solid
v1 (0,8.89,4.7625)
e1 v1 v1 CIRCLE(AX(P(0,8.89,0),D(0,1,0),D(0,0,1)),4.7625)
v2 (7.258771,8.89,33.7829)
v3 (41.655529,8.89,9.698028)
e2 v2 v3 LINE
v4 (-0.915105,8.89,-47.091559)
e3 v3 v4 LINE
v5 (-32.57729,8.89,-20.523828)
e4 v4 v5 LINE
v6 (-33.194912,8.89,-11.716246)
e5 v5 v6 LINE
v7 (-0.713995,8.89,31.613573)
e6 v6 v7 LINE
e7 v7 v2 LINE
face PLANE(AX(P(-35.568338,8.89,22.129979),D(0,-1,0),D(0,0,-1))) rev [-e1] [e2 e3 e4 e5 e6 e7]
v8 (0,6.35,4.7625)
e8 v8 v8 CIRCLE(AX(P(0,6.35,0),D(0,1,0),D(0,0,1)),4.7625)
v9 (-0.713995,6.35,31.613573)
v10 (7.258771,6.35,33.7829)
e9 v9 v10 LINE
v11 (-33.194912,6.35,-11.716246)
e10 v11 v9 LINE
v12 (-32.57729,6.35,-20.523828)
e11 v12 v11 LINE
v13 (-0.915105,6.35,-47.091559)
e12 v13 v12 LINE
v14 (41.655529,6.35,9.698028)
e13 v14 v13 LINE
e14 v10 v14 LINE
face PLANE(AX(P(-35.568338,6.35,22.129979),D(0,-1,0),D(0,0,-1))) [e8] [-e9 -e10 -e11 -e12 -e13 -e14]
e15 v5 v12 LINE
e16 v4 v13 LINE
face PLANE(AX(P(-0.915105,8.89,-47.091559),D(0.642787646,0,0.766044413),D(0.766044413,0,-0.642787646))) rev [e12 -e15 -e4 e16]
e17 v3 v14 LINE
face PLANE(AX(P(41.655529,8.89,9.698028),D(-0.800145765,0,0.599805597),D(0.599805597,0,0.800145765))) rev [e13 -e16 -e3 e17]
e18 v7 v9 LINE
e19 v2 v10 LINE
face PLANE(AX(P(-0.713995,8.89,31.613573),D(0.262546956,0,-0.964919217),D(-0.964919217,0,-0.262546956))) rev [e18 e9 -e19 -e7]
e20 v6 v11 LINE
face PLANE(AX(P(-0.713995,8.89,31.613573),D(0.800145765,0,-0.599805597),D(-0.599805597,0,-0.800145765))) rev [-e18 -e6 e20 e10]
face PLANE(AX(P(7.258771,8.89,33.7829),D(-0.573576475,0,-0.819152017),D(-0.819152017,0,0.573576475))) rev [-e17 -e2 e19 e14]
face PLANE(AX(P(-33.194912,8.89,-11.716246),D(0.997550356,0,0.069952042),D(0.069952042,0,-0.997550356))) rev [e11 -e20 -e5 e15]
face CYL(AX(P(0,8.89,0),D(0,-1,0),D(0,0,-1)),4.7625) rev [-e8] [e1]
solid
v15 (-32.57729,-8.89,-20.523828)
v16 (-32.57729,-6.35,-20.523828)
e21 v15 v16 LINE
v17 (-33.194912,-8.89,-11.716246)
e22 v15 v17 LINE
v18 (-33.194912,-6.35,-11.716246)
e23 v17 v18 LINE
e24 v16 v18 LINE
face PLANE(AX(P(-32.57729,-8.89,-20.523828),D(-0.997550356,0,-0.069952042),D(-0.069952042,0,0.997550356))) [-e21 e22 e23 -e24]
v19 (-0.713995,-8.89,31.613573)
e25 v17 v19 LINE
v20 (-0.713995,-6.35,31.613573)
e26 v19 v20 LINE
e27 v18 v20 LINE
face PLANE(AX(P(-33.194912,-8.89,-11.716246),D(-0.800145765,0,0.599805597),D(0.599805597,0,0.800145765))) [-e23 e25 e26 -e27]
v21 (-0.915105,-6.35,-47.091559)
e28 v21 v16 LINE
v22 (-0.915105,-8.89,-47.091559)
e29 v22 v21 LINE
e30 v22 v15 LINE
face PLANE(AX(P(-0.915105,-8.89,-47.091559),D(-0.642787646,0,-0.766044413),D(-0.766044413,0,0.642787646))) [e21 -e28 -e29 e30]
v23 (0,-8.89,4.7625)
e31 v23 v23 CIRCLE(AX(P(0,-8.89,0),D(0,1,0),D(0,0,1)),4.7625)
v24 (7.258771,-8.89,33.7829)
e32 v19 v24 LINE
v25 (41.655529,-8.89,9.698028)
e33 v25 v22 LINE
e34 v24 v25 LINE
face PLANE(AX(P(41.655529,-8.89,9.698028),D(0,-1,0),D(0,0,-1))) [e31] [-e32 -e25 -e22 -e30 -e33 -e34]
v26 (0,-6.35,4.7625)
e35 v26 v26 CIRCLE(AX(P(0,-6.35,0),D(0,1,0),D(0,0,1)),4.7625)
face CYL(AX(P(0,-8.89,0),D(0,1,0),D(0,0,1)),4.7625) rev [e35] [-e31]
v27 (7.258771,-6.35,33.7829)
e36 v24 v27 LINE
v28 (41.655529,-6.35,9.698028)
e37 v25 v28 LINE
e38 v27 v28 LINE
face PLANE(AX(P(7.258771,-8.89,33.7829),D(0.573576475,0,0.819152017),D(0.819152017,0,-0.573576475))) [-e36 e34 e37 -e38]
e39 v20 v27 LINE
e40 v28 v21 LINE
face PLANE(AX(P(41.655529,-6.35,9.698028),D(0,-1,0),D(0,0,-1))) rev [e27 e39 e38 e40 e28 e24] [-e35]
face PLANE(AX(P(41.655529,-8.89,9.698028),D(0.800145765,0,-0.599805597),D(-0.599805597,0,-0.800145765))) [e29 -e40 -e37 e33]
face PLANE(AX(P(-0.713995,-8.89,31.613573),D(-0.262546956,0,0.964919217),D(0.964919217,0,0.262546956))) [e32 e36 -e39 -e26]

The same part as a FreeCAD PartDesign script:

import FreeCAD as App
import Part
import Sketcher

V = App.Vector
Q = App.Units.Quantity

doc = App.newDocument("Part")
body = doc.addObject("PartDesign::Body", "Body")

# Sketch on XZ plane
sketch1 = body.newObject("Sketcher::SketchObject", "Sketch")
sketch1.AttachmentSupport = (doc.getObject("XZ_Plane"), [""])
sketch1.MapMode = "FlatFace"
sketch1.AttachmentOffset = App.Placement(V(0, 0, -0.25 * 25.4), App.Rotation())
sketch1.addGeometry([
    Part.LineSegment(V(41.7, 9.7, 0), V(-0.9, -47.1, 0)),  # 0
    Part.LineSegment(V(-0.9, -47.1, 0), V(-32.6, -20.5, 0)),  # 1
    Part.LineSegment(V(-32.6, -20.5, 0), V(-33.2, -11.7, 0)),  # 2
    Part.LineSegment(V(-33.2, -11.7, 0), V(-0.7, 31.6, 0)),  # 3
    Part.LineSegment(V(-0.7, 31.6, 0), V(7.3, 33.8, 0)),  # 4
    Part.LineSegment(V(7.3, 33.8, 0), V(41.7, 9.7, 0)),  # 5
    Part.Circle(V(0, 0, 0), V(0, 0, 1), 4.8),  # 6
], False)
sketch1.addConstraint([
    Sketcher.Constraint("Coincident", 0, 2, 1, 1),
    Sketcher.Constraint("Coincident", 1, 2, 2, 1),
    Sketcher.Constraint("Coincident", 2, 2, 3, 1),
    Sketcher.Constraint("Coincident", 3, 2, 4, 1),
    Sketcher.Constraint("Coincident", 4, 2, 5, 1),
    Sketcher.Constraint("Coincident", 5, 2, 0, 1),
    Sketcher.Constraint("Coincident", 6, 3, -1, 1),
    Sketcher.Constraint("Parallel", 0, 3),
    Sketcher.Constraint("Diameter", 6, Q("0.375 in")),
    Sketcher.Constraint("Angle", 1, Q("139.999997 deg")),
    Sketcher.Constraint("Angle", 5, Q("-35.000003 deg")),
    Sketcher.Constraint("DistanceY", -1, 1, 4, 2, 33.7829),
    Sketcher.Constraint("DistanceY", 1, 2, 3, 2, 52.137401),
    Sketcher.Constraint("Distance", 0, 70.974052),
    Sketcher.Constraint("Distance", 1, 41.332049),
    Sketcher.Constraint("Distance", 2, 8.829211),
    Sketcher.Constraint("Distance", 5, 41.990689),
    Sketcher.Constraint("DistanceY", 0, 2, -1, 1, 47.091559),
    Sketcher.Constraint("DistanceX", 1, 2, -1, 1, 32.57729),
    Sketcher.Constraint("DistanceX", 2, 2, -1, 1, 33.194912),
])
pad1 = body.newObject("PartDesign::Pad", "Pad")
pad1.Profile = sketch1
pad1.Length = Q("0.1 in")
pad1.Reversed = True
body2 = doc.addObject("PartDesign::Body", "Body001")

# Sketch on XZ plane
sketch2 = body2.newObject("Sketcher::SketchObject", "Sketch001")
sketch2.AttachmentSupport = (doc.getObject("XZ_Plane001"), [""])
sketch2.MapMode = "FlatFace"
sketch2.AttachmentOffset = App.Placement(V(0, 0, 0.25 * 25.4), App.Rotation())
sketch2.addGeometry([
    Part.LineSegment(V(7.3, 33.8, 0), V(41.7, 9.7, 0)),  # 0
    Part.LineSegment(V(41.7, 9.7, 0), V(-0.9, -47.1, 0)),  # 1
    Part.LineSegment(V(-0.9, -47.1, 0), V(-32.6, -20.5, 0)),  # 2
    Part.LineSegment(V(-32.6, -20.5, 0), V(-33.2, -11.7, 0)),  # 3
    Part.LineSegment(V(-33.2, -11.7, 0), V(-0.7, 31.6, 0)),  # 4
    Part.LineSegment(V(-0.7, 31.6, 0), V(7.3, 33.8, 0)),  # 5
    Part.Circle(V(0, 0, 0), V(0, 0, 1), 4.8),  # 6
], False)
sketch2.addConstraint([
    Sketcher.Constraint("Coincident", 0, 2, 1, 1),
    Sketcher.Constraint("Coincident", 1, 2, 2, 1),
    Sketcher.Constraint("Coincident", 2, 2, 3, 1),
    Sketcher.Constraint("Coincident", 3, 2, 4, 1),
    Sketcher.Constraint("Coincident", 4, 2, 5, 1),
    Sketcher.Constraint("Coincident", 5, 2, 0, 1),
    Sketcher.Constraint("Coincident", 6, 3, -1, 1),
    Sketcher.Constraint("Parallel", 1, 4),
    Sketcher.Constraint("Diameter", 6, Q("0.375 in")),
    Sketcher.Constraint("Angle", 0, Q("-35.000003 deg")),
    Sketcher.Constraint("Angle", 2, Q("139.999997 deg")),
    Sketcher.Constraint("DistanceY", -1, 1, 5, 2, 33.7829),
    Sketcher.Constraint("DistanceY", 2, 2, 4, 2, 52.137401),
    Sketcher.Constraint("Distance", 0, 41.990689),
    Sketcher.Constraint("Distance", 1, 70.974052),
    Sketcher.Constraint("Distance", 2, 41.332049),
    Sketcher.Constraint("Distance", 3, 8.829211),
    Sketcher.Constraint("DistanceX", -1, 1, 0, 2, 41.655529),
    Sketcher.Constraint("DistanceY", 1, 2, -1, 1, 47.091559),
    Sketcher.Constraint("DistanceX", 3, 2, -1, 1, 33.194912),
])
pad2 = body2.newObject("PartDesign::Pad", "Pad001")
pad2.Profile = sketch2
pad2.Length = Q("0.1 in")

doc.recompute()
